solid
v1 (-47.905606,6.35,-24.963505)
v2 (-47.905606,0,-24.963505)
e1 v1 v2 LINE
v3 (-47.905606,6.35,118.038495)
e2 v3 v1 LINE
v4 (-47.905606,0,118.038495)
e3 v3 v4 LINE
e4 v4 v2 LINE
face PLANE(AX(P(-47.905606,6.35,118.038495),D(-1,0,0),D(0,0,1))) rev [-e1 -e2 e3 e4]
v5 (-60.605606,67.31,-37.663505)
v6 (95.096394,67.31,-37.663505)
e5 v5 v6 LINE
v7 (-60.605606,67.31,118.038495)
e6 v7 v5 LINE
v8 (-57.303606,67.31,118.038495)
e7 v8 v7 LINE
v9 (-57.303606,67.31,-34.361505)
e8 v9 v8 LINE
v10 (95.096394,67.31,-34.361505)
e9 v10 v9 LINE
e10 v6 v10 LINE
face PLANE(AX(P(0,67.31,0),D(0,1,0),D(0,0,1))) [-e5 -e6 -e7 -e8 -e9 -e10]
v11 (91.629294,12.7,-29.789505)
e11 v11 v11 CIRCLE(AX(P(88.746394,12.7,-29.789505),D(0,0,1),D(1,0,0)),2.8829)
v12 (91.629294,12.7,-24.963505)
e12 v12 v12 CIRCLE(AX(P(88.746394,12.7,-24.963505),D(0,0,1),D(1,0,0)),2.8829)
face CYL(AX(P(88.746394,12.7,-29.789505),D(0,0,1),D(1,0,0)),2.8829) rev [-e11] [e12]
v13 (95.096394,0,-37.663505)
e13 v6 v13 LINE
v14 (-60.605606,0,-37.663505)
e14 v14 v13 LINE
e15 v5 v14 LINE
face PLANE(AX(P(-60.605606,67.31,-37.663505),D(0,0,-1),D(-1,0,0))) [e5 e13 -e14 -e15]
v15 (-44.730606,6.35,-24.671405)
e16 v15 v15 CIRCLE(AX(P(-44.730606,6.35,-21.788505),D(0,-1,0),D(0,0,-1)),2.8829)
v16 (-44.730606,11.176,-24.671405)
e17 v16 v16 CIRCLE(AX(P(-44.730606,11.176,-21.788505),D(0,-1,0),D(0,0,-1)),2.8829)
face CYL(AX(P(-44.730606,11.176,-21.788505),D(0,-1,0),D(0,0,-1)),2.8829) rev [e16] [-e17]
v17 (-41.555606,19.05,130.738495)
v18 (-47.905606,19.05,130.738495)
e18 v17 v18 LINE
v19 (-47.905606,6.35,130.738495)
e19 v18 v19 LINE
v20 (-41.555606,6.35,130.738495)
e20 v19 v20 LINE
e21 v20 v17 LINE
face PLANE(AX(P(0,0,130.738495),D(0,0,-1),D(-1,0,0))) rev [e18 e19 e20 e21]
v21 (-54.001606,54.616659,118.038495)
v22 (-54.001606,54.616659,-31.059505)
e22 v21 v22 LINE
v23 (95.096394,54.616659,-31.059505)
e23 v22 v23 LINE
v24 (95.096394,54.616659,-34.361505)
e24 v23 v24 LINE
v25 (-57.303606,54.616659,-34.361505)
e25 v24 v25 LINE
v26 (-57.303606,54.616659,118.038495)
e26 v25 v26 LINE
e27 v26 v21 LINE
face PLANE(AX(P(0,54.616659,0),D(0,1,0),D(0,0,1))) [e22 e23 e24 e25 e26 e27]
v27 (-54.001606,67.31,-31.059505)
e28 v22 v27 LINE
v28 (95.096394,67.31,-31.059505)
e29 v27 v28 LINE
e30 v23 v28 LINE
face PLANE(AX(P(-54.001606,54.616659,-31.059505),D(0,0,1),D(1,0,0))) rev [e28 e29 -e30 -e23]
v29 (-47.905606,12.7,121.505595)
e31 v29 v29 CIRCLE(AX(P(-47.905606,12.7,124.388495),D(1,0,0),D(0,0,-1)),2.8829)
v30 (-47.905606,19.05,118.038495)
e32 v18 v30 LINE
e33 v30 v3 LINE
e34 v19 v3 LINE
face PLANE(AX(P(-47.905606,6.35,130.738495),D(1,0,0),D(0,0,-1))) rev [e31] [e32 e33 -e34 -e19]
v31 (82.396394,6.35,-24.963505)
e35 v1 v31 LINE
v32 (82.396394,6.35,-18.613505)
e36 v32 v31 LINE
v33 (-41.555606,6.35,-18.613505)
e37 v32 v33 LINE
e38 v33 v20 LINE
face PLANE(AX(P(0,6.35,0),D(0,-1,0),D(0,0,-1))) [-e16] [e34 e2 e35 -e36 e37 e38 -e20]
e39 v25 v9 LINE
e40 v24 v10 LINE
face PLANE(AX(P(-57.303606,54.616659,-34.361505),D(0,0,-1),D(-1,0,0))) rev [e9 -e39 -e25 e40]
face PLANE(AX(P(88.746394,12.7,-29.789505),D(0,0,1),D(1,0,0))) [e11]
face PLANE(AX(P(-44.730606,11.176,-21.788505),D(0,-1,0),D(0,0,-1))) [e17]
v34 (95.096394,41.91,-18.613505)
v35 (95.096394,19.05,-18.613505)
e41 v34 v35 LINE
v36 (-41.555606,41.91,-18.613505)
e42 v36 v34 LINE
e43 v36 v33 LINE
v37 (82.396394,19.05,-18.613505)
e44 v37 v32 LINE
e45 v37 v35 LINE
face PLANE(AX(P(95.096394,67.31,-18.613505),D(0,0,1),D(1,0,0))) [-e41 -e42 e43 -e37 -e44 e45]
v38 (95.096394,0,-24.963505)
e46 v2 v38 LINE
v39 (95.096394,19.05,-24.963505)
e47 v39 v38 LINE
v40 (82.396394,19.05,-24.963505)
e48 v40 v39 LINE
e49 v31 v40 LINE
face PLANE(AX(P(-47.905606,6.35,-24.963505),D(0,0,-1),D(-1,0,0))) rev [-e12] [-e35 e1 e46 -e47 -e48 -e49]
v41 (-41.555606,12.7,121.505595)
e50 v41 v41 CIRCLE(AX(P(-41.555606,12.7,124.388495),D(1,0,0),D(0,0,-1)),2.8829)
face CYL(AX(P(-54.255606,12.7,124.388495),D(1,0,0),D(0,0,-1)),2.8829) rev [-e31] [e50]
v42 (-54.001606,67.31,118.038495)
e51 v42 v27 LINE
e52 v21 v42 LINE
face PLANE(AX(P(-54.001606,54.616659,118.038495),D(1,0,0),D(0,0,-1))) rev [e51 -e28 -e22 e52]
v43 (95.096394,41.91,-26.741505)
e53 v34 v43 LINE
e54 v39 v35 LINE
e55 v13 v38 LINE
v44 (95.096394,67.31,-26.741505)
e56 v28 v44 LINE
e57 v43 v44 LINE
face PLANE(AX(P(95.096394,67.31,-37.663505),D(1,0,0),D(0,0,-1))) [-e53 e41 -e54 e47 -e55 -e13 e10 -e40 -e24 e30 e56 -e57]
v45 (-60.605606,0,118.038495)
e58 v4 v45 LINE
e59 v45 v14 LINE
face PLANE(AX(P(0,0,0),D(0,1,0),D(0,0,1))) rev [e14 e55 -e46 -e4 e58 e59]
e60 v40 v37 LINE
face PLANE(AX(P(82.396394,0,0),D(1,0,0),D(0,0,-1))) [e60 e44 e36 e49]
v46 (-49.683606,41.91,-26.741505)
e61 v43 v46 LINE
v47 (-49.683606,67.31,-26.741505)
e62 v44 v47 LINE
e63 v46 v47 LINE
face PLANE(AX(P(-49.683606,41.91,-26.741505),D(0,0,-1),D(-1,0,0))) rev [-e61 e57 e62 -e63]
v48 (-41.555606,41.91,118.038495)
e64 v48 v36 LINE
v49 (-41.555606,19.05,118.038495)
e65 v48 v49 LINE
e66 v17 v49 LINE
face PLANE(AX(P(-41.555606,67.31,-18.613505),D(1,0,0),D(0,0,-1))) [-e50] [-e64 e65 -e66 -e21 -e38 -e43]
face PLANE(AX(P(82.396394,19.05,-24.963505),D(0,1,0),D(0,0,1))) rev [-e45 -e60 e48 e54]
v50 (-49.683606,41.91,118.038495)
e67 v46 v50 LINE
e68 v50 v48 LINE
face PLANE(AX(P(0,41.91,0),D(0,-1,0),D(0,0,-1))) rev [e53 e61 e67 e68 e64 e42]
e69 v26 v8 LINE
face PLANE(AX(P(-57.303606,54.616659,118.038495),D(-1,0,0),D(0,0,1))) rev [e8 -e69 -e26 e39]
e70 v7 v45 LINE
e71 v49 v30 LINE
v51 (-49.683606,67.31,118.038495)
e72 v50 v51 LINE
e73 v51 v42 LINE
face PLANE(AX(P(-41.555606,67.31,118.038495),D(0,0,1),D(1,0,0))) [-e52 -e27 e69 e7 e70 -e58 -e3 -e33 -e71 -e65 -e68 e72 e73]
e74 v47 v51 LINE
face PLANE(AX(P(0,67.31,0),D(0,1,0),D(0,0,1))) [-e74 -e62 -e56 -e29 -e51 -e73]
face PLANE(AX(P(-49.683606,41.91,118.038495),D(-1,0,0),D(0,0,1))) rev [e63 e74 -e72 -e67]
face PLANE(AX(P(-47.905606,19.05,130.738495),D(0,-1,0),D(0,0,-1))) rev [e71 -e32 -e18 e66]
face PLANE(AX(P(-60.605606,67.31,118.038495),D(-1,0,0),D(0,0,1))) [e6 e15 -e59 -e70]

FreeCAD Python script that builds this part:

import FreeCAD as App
import Part
import Sketcher
Q = App.Units.Quantity


def add_polygon(sketch, points):
    """Adds a closed chain of lines whose ends are joined by coincident constraints."""
    first, n = sketch.GeometryCount, len(points)
    for a, b in zip(points, points[1:] + points[:1]):
        sketch.addGeometry(Part.LineSegment(App.Vector(*a, 0), App.Vector(*b, 0)), False)
    for i in range(n):
        sketch.addConstraint(Sketcher.Constraint("Coincident", first + i, 2, first + (i + 1) % n, 1))

doc = App.newDocument("Part")
body = doc.addObject("PartDesign::Body", "Body")

# Sketch on XZ plane
sketch1 = body.newObject("Sketcher::SketchObject", "Sketch")
sketch1.AttachmentSupport = (doc.getObject("XZ_Plane"), [""])
sketch1.MapMode = "FlatFace"
add_polygon(sketch1, [(95.096394, -37.663505), (-60.605606, -37.663505), (-60.605606, 118.038495), (-41.555606, 118.038495), (-41.555606, -18.613505), (95.096394, -18.613505)])  # lines 0-5
sketch1.addConstraint(Sketcher.Constraint("Horizontal", 0))
sketch1.addConstraint(Sketcher.Constraint("Vertical", 1))
sketch1.addConstraint(Sketcher.Constraint("Horizontal", 2))
sketch1.addConstraint(Sketcher.Constraint("Vertical", 3))
sketch1.addConstraint(Sketcher.Constraint("Horizontal", 4))
sketch1.addConstraint(Sketcher.Constraint("Vertical", 5))
sketch1.addConstraint(Sketcher.Constraint("Equal", 0, 1))
sketch1.addConstraint(Sketcher.Constraint("Equal", 4, 3))
sketch1.addConstraint(Sketcher.Constraint("DistanceX", 0, 2, 0, 1, Q("6.13 in")))
sketch1.addConstraint(Sketcher.Constraint("DistanceX", 2, 1, 2, 2, Q("0.75 in")))
sketch1.addConstraint(Sketcher.Constraint("DistanceX", 0, 2, -1, 1, Q("60.605606 mm")))
sketch1.addConstraint(Sketcher.Constraint("DistanceY", 0, 2, -1, 1, Q("37.663505 mm")))
pad1 = body.newObject("PartDesign::Pad", "Pad")
pad1.Profile = sketch1
pad1.Length = Q("2.65 in")
pad1.Reversed = True

# Sketch on XZ plane
sketch2 = body.newObject("Sketcher::SketchObject", "Sketch001")
sketch2.AttachmentSupport = (doc.getObject("XZ_Plane"), [""])
sketch2.MapMode = "FlatFace"
sketch2.AttachmentOffset = App.Placement(App.Vector(0, 0, -2.65 * 25.4), App.Rotation())
add_polygon(sketch2, [(-57.303606, -34.361505), (-57.303606, 118.038495), (-54.001606, 118.038495), (-54.001606, -31.059505), (95.096394, -31.059505), (95.096394, -34.361505)])  # lines 0-5
sketch2.addConstraint(Sketcher.Constraint("Vertical", 0))
sketch2.addConstraint(Sketcher.Constraint("Horizontal", 1))
sketch2.addConstraint(Sketcher.Constraint("Vertical", 2))
sketch2.addConstraint(Sketcher.Constraint("Horizontal", 3))
sketch2.addConstraint(Sketcher.Constraint("Vertical", 4))
sketch2.addConstraint(Sketcher.Constraint("Horizontal", 5))
sketch2.addConstraint(Sketcher.Constraint("Equal", 5, 0))
sketch2.addConstraint(Sketcher.Constraint("Equal", 3, 2))
sketch2.addConstraint(Sketcher.Constraint("DistanceX", 5, 2, 5, 1, Q("6 in")))
sketch2.addConstraint(Sketcher.Constraint("DistanceX", 1, 1, 1, 2, Q("0.13 in")))
sketch2.addConstraint(Sketcher.Constraint("DistanceX", 0, 2, -1, 1, Q("57.303606 mm")))
sketch2.addConstraint(Sketcher.Constraint("DistanceY", -1, 1, 0, 2, Q("118.038495 mm")))
pocket1 = body.newObject("PartDesign::Pocket", "Pocket")
pocket1.Profile = sketch2
pocket1.Length = 12.693341
pocket1.Reversed = True

# Sketch on XZ plane
sketch3 = body.newObject("Sketcher::SketchObject", "Sketch002")
sketch3.AttachmentSupport = (doc.getObject("XZ_Plane"), [""])
sketch3.MapMode = "FlatFace"
sketch3.AttachmentOffset = App.Placement(App.Vector(0, 0, -2.65 * 25.4), App.Rotation())
add_polygon(sketch3, [(-49.683606, -26.741505), (-49.683606, 118.038495), (-41.555606, 118.038495), (-41.555606, -18.613505), (95.096394, -18.613505), (95.096394, -26.741505)])  # lines 0-5
sketch3.addConstraint(Sketcher.Constraint("Vertical", 0))
sketch3.addConstraint(Sketcher.Constraint("Horizontal", 1))
sketch3.addConstraint(Sketcher.Constraint("Vertical", 2))
sketch3.addConstraint(Sketcher.Constraint("Horizontal", 3))
sketch3.addConstraint(Sketcher.Constraint("Vertical", 4))
sketch3.addConstraint(Sketcher.Constraint("Horizontal", 5))
sketch3.addConstraint(Sketcher.Constraint("Equal", 5, 0))
sketch3.addConstraint(Sketcher.Constraint("Equal", 3, 2))
sketch3.addConstraint(Sketcher.Constraint("DistanceX", 5, 2, 5, 1, Q("5.7 in")))
sketch3.addConstraint(Sketcher.Constraint("DistanceX", 1, 1, 1, 2, Q("0.32 in")))
sketch3.addConstraint(Sketcher.Constraint("DistanceX", 0, 2, -1, 1, Q("49.683606 mm")))
sketch3.addConstraint(Sketcher.Constraint("DistanceY", -1, 1, 0, 2, Q("118.038495 mm")))
pocket2 = body.newObject("PartDesign::Pocket", "Pocket001")
pocket2.Profile = sketch3
pocket2.Length = Q("1 in")
pocket2.Reversed = True

# Sketch on XZ plane
sketch4 = body.newObject("Sketcher::SketchObject", "Sketch003")
sketch4.AttachmentSupport = (doc.getObject("XZ_Plane"), [""])
sketch4.MapMode = "FlatFace"
add_polygon(sketch4, [(-41.555606, 118.038495), (-47.905606, 118.038495), (-47.905606, -24.963505), (95.096394, -24.963505), (95.096394, -18.613505), (-41.555606, -18.613505)])  # lines 0-5
sketch4.addConstraint(Sketcher.Constraint("Horizontal", 0))
sketch4.addConstraint(Sketcher.Constraint("Vertical", 1))
sketch4.addConstraint(Sketcher.Constraint("Horizontal", 2))
sketch4.addConstraint(Sketcher.Constraint("Vertical", 3))
sketch4.addConstraint(Sketcher.Constraint("Horizontal", 4))
sketch4.addConstraint(Sketcher.Constraint("Vertical", 5))
sketch4.addConstraint(Sketcher.Constraint("Equal", 2, 1))
sketch4.addConstraint(Sketcher.Constraint("Equal", 0, 3))
sketch4.addConstraint(Sketcher.Constraint("DistanceX", 0, 2, 0, 1, Q("0.25 in")))
sketch4.addConstraint(Sketcher.Constraint("DistanceX", 2, 1, 2, 2, Q("5.63 in")))
sketch4.addConstraint(Sketcher.Constraint("DistanceX", 0, 2, -1, 1, Q("47.905606 mm")))
sketch4.addConstraint(Sketcher.Constraint("DistanceY", -1, 1, 0, 2, Q("118.038495 mm")))
pocket3 = body.newObject("PartDesign::Pocket", "Pocket002")
pocket3.Profile = sketch4
pocket3.Length = Q("0.25 in")

# Sketch on XY plane
sketch5 = body.newObject("Sketcher::SketchObject", "Sketch004")
sketch5.AttachmentSupport = (doc.getObject("XY_Plane"), [""])
sketch5.MapMode = "FlatFace"
sketch5.AttachmentOffset = App.Placement(App.Vector(0, 0, 118.038495), App.Rotation())
add_polygon(sketch5, [(-47.905606, 19.05), (-47.905606, 6.35), (-41.555606, 6.35), (-41.555606, 19.05)])  # lines 0-3
sketch5.addConstraint(Sketcher.Constraint("Vertical", 0))
sketch5.addConstraint(Sketcher.Constraint("Horizontal", 1))
sketch5.addConstraint(Sketcher.Constraint("Vertical", 2))
sketch5.addConstraint(Sketcher.Constraint("Horizontal", 3))
sketch5.addConstraint(Sketcher.Constraint("DistanceY", 0, 2, 0, 1, Q("0.5 in")))
sketch5.addConstraint(Sketcher.Constraint("DistanceX", 1, 1, 1, 2, Q("0.25 in")))
sketch5.addConstraint(Sketcher.Constraint("DistanceY", -1, 1, 0, 2, Q("0.25 in")))
sketch5.addConstraint(Sketcher.Constraint("DistanceX", 0, 2, -1, 1, Q("47.905606 mm")))
pad2 = body.newObject("PartDesign::Pad", "Pad001")
pad2.Profile = sketch5
pad2.Length = Q("0.5 in")

# Sketch on YZ plane
sketch6 = body.newObject("Sketcher::SketchObject", "Sketch005")
sketch6.AttachmentSupport = (doc.getObject("YZ_Plane"), [""])
sketch6.MapMode = "FlatFace"
sketch6.AttachmentOffset = App.Placement(App.Vector(0, 0, 95.096394), App.Rotation())
add_polygon(sketch6, [(19.05, -18.613505), (6.35, -18.613505), (6.35, -24.963505), (19.05, -24.963505)])  # lines 0-3
sketch6.addConstraint(Sketcher.Constraint("Horizontal", 0))
sketch6.addConstraint(Sketcher.Constraint("Vertical", 1))
sketch6.addConstraint(Sketcher.Constraint("Horizontal", 2))
sketch6.addConstraint(Sketcher.Constraint("Vertical", 3))
sketch6.addConstraint(Sketcher.Constraint("DistanceX", 0, 2, 0, 1, Q("0.5 in")))
sketch6.addConstraint(Sketcher.Constraint("DistanceY", 1, 2, 1, 1, Q("0.25 in")))
sketch6.addConstraint(Sketcher.Constraint("DistanceX", -1, 1, 0, 2, Q("0.25 in")))
sketch6.addConstraint(Sketcher.Constraint("DistanceY", 0, 2, -1, 1, Q("18.613505 mm")))
pocket4 = body.newObject("PartDesign::Pocket", "Pocket003")
pocket4.Profile = sketch6
pocket4.Length = Q("0.5 in")

# Sketch on YZ plane
sketch7 = body.newObject("Sketcher::SketchObject", "Sketch006")
sketch7.AttachmentSupport = (doc.getObject("YZ_Plane"), [""])
sketch7.MapMode = "FlatFace"
sketch7.AttachmentOffset = App.Placement(App.Vector(0, 0, -41.555606), App.Rotation())
sketch7.addGeometry(Part.Circle(App.Vector(12.7, 124.388495, 0), App.Vector(0, 0, 1), 2.8829), False)
sketch7.addConstraint(Sketcher.Constraint("Diameter", 0, Q("0.227 in")))
sketch7.addConstraint(Sketcher.Constraint("DistanceX", -1, 1, 0, 3, Q("0.5 in")))
sketch7.addConstraint(Sketcher.Constraint("DistanceY", -1, 1, 0, 3, Q("124.388495 mm")))
pocket5 = body.newObject("PartDesign::Pocket", "Pocket004")
pocket5.Profile = sketch7
pocket5.Length = Q("0.5 in")

# Sketch on XY plane
sketch8 = body.newObject("Sketcher::SketchObject", "Sketch007")
sketch8.AttachmentSupport = (doc.getObject("XY_Plane"), [""])
sketch8.MapMode = "FlatFace"
sketch8.AttachmentOffset = App.Placement(App.Vector(0, 0, -24.963505), App.Rotation())
sketch8.addGeometry(Part.Circle(App.Vector(88.746394, 12.7, 0), App.Vector(0, 0, 1), 2.8829), False)
sketch8.addConstraint(Sketcher.Constraint("Diameter", 0, Q("0.227 in")))
sketch8.addConstraint(Sketcher.Constraint("DistanceY", -1, 1, 0, 3, Q("0.5 in")))
sketch8.addConstraint(Sketcher.Constraint("DistanceX", -1, 1, 0, 3, Q("88.746394 mm")))
pocket6 = body.newObject("PartDesign::Pocket", "Pocket005")
pocket6.Profile = sketch8
pocket6.Length = Q("0.19 in")

# Sketch on XZ plane
sketch9 = body.newObject("Sketcher::SketchObject", "Sketch008")
sketch9.AttachmentSupport = (doc.getObject("XZ_Plane"), [""])
sketch9.MapMode = "FlatFace"
sketch9.AttachmentOffset = App.Placement(App.Vector(0, 0, -0.25 * 25.4), App.Rotation())
sketch9.addGeometry(Part.Circle(App.Vector(-44.730606, -21.788505, 0), App.Vector(0, 0, 1), 2.8829), False)
sketch9.addConstraint(Sketcher.Constraint("Diameter", 0, Q("0.227 in")))
sketch9.addConstraint(Sketcher.Constraint("DistanceX", 0, 3, -1, 1, Q("44.730606 mm")))
sketch9.addConstraint(Sketcher.Constraint("DistanceY", 0, 3, -1, 1, Q("21.788505 mm")))
pocket7 = body.newObject("PartDesign::Pocket", "Pocket006")
pocket7.Profile = sketch9
pocket7.Length = Q("0.19 in")

doc.recompute()
